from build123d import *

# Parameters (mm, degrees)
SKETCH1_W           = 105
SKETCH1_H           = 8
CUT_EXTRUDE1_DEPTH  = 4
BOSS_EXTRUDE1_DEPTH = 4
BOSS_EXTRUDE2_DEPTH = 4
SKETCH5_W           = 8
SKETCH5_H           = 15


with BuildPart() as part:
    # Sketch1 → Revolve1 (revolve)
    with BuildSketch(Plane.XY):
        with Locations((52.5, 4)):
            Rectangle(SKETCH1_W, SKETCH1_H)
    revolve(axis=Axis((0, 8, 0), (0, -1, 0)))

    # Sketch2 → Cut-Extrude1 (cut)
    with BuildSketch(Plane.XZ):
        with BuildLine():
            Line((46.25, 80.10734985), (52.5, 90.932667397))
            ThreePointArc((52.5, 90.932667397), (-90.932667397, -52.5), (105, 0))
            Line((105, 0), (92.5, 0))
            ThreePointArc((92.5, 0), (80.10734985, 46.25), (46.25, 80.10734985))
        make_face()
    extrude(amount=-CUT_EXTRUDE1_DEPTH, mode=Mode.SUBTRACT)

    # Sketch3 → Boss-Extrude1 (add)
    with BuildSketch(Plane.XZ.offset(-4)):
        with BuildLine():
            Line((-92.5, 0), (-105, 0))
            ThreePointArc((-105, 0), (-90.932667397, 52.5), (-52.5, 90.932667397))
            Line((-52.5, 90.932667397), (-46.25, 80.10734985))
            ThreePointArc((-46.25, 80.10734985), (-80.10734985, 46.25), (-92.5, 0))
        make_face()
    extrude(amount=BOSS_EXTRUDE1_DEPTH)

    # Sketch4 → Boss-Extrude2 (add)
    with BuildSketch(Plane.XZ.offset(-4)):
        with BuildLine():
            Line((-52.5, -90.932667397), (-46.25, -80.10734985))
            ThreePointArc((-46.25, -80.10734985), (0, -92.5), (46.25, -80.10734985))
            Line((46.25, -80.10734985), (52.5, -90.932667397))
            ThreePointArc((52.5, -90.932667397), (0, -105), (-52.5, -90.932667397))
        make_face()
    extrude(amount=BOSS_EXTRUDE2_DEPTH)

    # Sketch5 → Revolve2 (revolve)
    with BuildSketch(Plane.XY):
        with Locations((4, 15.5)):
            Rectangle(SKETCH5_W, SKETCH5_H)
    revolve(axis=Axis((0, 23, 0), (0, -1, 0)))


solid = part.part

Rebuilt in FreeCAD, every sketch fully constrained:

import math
import FreeCAD as App
import Part
import Sketcher

V = App.Vector
Q = App.Units.Quantity


def add_polygon(sketch, points):
    """Adds a closed chain of lines whose ends are joined by coincident constraints."""
    first, n = sketch.GeometryCount, len(points)
    for a, b in zip(points, points[1:] + points[:1]):
        sketch.addGeometry(Part.LineSegment(App.Vector(*a, 0), App.Vector(*b, 0)), False)
    for i in range(n):
        sketch.addConstraint(Sketcher.Constraint("Coincident", first + i, 2, first + (i + 1) % n, 1))

doc = App.newDocument("Part")
params = doc.addObject("Spreadsheet::Sheet", "Params")
for row, (alias, value) in enumerate([
    ("sketch1_width", "105 mm"),
    ("sketch1_height", "8 mm"),
    ("revolution_angle", "360 deg"),
    ("sketch2_radius", "105 mm"),
    ("sketch2_radius2", "92.5 mm"),
    ("pocket1_length", "4 mm"),
    ("sketch3_radius", "105 mm"),
    ("sketch3_radius2", "92.5 mm"),
    ("pad1_length", "4 mm"),
    ("sketch4_radius", "105 mm"),
    ("sketch4_radius2", "92.5 mm"),
    ("pad2_length", "4 mm"),
    ("sketch5_width", "8 mm"),
    ("sketch5_height", "15 mm"),
    ("revolution2_angle", "360 deg"),
], start=1):
    params.set(f"A{row}", alias)
    params.set(f"B{row}", "=" + value)
    params.setAlias(f"B{row}", alias)

body = doc.addObject("PartDesign::Body", "Body")

# Sketch on XY plane
sketch1 = body.newObject("Sketcher::SketchObject", "Sketch")
sketch1.AttachmentSupport = (doc.getObject("XY_Plane"), [""])
sketch1.MapMode = "FlatFace"
add_polygon(sketch1, [(0, 8), (0, 0), (105, 0), (105, 8)])  # lines 0-3
sketch1.addConstraint(Sketcher.Constraint("Vertical", 0))
sketch1.addConstraint(Sketcher.Constraint("Horizontal", 1))
sketch1.addConstraint(Sketcher.Constraint("Vertical", 2))
sketch1.addConstraint(Sketcher.Constraint("Horizontal", 3))
sketch1.addConstraint(Sketcher.Constraint("Coincident", 0, 2, -1, 1))
sketch1.addConstraint(Sketcher.Constraint("DistanceX", 1, 1, 1, 2, 105.0))
sketch1.addConstraint(Sketcher.Constraint("DistanceY", 0, 2, 0, 1, 8.0))
sketch1.setExpression("Constraints[9]", "Params.sketch1_width")
sketch1.setExpression("Constraints[10]", "Params.sketch1_height")
revolution = body.newObject("PartDesign::Revolution", "Revolution")
revolution.Profile = sketch1
revolution.ReferenceAxis = (sketch1, ["V_Axis"])
revolution.setExpression("Angle", "Params.revolution_angle")

# Sketch on XZ plane
sketch2 = body.newObject("Sketcher::SketchObject", "Sketch001")
sketch2.AttachmentSupport = (doc.getObject("XZ_Plane"), [""])
sketch2.MapMode = "FlatFace"
sketch2.addGeometry(Part.LineSegment(V(46.25, 80.10735, 0), V(52.5, 90.932667, 0)), False)
sketch2.addGeometry(Part.ArcOfCircle(Part.Circle(V(0, 0, 0), V(0, 0, 1), 105), math.radians(60), math.radians(360)), False)
sketch2.addGeometry(Part.LineSegment(V(105, 0, 0), V(92.5, 0, 0)), False)
sketch2.addGeometry(Part.ArcOfCircle(Part.Circle(V(0, 0, 0), V(0, 0, 1), 92.5), math.radians(0), math.radians(60)), False)
sketch2.addConstraint(Sketcher.Constraint("Coincident", 0, 2, 1, 1))
sketch2.addConstraint(Sketcher.Constraint("Coincident", 1, 2, 2, 1))
sketch2.addConstraint(Sketcher.Constraint("Coincident", 2, 2, 3, 1))
sketch2.addConstraint(Sketcher.Constraint("Coincident", 3, 2, 0, 1))
sketch2.addConstraint(Sketcher.Constraint("Horizontal", 2))
sketch2.addConstraint(Sketcher.Constraint("Coincident", 1, 3, -1, 1))
sketch2.addConstraint(Sketcher.Constraint("Coincident", 3, 3, -1, 1))
sketch2.addConstraint(Sketcher.Constraint("PointOnObject", 1, 2, -1))
sketch2.addConstraint(Sketcher.Constraint("Radius", 1, 105.0))
sketch2.addConstraint(Sketcher.Constraint("Radius", 3, 92.5))
sketch2.addConstraint(Sketcher.Constraint("Angle", 0, Q("60 deg")))
sketch2.addConstraint(Sketcher.Constraint("DistanceX", 0, 2, 2, 2, 40.0))
sketch2.setExpression("Constraints[8]", "Params.sketch2_radius")
sketch2.setExpression("Constraints[9]", "Params.sketch2_radius2")
pocket1 = body.newObject("PartDesign::Pocket", "Pocket")
pocket1.Profile = sketch2
pocket1.setExpression("Length", "Params.pocket1_length")

# Sketch on XZ plane
sketch3 = body.newObject("Sketcher::SketchObject", "Sketch002")
sketch3.AttachmentSupport = (doc.getObject("XZ_Plane"), [""])
sketch3.MapMode = "FlatFace"
sketch3.AttachmentOffset = App.Placement(V(0, 0, -4), App.Rotation())
sketch3.addGeometry(Part.LineSegment(V(-105, 0, 0), V(-92.5, 0, 0)), False)
sketch3.addGeometry(Part.ArcOfCircle(Part.Circle(V(0, 0, 0), V(0, 0, 1), 92.5), math.radians(120), math.radians(180)), False)
sketch3.addGeometry(Part.LineSegment(V(-46.25, 80.10735, 0), V(-52.5, 90.932667, 0)), False)
sketch3.addGeometry(Part.ArcOfCircle(Part.Circle(V(0, 0, 0), V(0, 0, 1), 105), math.radians(120), math.radians(180)), False)
sketch3.addConstraint(Sketcher.Constraint("Coincident", 0, 2, 1, 2))
sketch3.addConstraint(Sketcher.Constraint("Coincident", 1, 1, 2, 1))
sketch3.addConstraint(Sketcher.Constraint("Coincident", 2, 2, 3, 1))
sketch3.addConstraint(Sketcher.Constraint("Coincident", 3, 2, 0, 1))
sketch3.addConstraint(Sketcher.Constraint("Horizontal", 0))
sketch3.addConstraint(Sketcher.Constraint("Coincident", 1, 3, -1, 1))
sketch3.addConstraint(Sketcher.Constraint("Coincident", 3, 3, -1, 1))
sketch3.addConstraint(Sketcher.Constraint("PointOnObject", 0, 2, -1))
sketch3.addConstraint(Sketcher.Constraint("Radius", 3, 105.0))
sketch3.addConstraint(Sketcher.Constraint("Radius", 1, 92.5))
sketch3.addConstraint(Sketcher.Constraint("Angle", 2, Q("120 deg")))
sketch3.addConstraint(Sketcher.Constraint("DistanceX", 0, 2, 2, 2, 40.0))
sketch3.setExpression("Constraints[8]", "Params.sketch3_radius")
sketch3.setExpression("Constraints[9]", "Params.sketch3_radius2")
pad1 = body.newObject("PartDesign::Pad", "Pad")
pad1.Profile = sketch3
pad1.setExpression("Length", "Params.pad1_length")

# Sketch on XZ plane
sketch4 = body.newObject("Sketcher::SketchObject", "Sketch003")
sketch4.AttachmentSupport = (doc.getObject("XZ_Plane"), [""])
sketch4.MapMode = "FlatFace"
sketch4.AttachmentOffset = App.Placement(V(0, 0, -4), App.Rotation())
sketch4.addGeometry(Part.LineSegment(V(-46.25, -80.10735, 0), V(-52.5, -90.932667, 0)), False)
sketch4.addGeometry(Part.ArcOfCircle(Part.Circle(V(0, 0, 0), V(0, 0, 1), 105), math.radians(-120), math.radians(-60)), False)
sketch4.addGeometry(Part.LineSegment(V(52.5, -90.932667, 0), V(46.25, -80.10735, 0)), False)
sketch4.addGeometry(Part.ArcOfCircle(Part.Circle(V(0, 0, 0), V(0, 0, 1), 92.5), math.radians(-120), math.radians(-60)), False)
sketch4.addConstraint(Sketcher.Constraint("Coincident", 0, 2, 1, 1))
sketch4.addConstraint(Sketcher.Constraint("Coincident", 1, 2, 2, 1))
sketch4.addConstraint(Sketcher.Constraint("Coincident", 2, 2, 3, 2))
sketch4.addConstraint(Sketcher.Constraint("Coincident", 3, 1, 0, 1))
sketch4.addConstraint(Sketcher.Constraint("Coincident", 1, 3, -1, 1))
sketch4.addConstraint(Sketcher.Constraint("Coincident", 3, 3, -1, 1))
sketch4.addConstraint(Sketcher.Constraint("Horizontal", 0, 2, 1, 2))
sketch4.addConstraint(Sketcher.Constraint("Horizontal", 2, 2, 3, 1))
sketch4.addConstraint(Sketcher.Constraint("Radius", 1, 105.0))
sketch4.addConstraint(Sketcher.Constraint("Radius", 3, 92.5))
sketch4.addConstraint(Sketcher.Constraint("Angle", 0, Q("-120 deg")))
sketch4.addConstraint(Sketcher.Constraint("DistanceX", 0, 2, 1, 2, 105.0))
sketch4.setExpression("Constraints[8]", "Params.sketch4_radius")
sketch4.setExpression("Constraints[9]", "Params.sketch4_radius2")
pad2 = body.newObject("PartDesign::Pad", "Pad001")
pad2.Profile = sketch4
pad2.setExpression("Length", "Params.pad2_length")

# Sketch on XY plane
sketch5 = body.newObject("Sketcher::SketchObject", "Sketch004")
sketch5.AttachmentSupport = (doc.getObject("XY_Plane"), [""])
sketch5.MapMode = "FlatFace"
add_polygon(sketch5, [(0, 23), (0, 8), (8, 8), (8, 23)])  # lines 0-3
sketch5.addConstraint(Sketcher.Constraint("Vertical", 0))
sketch5.addConstraint(Sketcher.Constraint("Horizontal", 1))
sketch5.addConstraint(Sketcher.Constraint("Vertical", 2))
sketch5.addConstraint(Sketcher.Constraint("Horizontal", 3))
sketch5.addConstraint(Sketcher.Constraint("PointOnObject", 0, 2, -2))
sketch5.addConstraint(Sketcher.Constraint("DistanceX", 1, 1, 1, 2, 8.0))
sketch5.addConstraint(Sketcher.Constraint("DistanceY", 0, 2, 0, 1, 15.0))
sketch5.addConstraint(Sketcher.Constraint("DistanceY", -1, 1, 0, 2, 8.0))
sketch5.setExpression("Constraints[9]", "Params.sketch5_width")
sketch5.setExpression("Constraints[10]", "Params.sketch5_height")
revolution2 = body.newObject("PartDesign::Revolution", "Revolution001")
revolution2.Profile = sketch5
revolution2.ReferenceAxis = (sketch5, ["V_Axis"])
revolution2.setExpression("Angle", "Params.revolution2_angle")

doc.recompute()
